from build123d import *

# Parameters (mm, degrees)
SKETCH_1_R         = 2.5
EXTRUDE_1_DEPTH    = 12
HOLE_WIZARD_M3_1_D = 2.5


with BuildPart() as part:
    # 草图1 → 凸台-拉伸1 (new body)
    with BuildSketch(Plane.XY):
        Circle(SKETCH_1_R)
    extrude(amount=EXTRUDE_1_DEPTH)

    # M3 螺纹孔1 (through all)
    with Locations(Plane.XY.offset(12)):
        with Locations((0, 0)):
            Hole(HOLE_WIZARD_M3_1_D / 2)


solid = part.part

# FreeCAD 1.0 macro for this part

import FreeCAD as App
import Part
import Sketcher
from FreeCAD import Vector

doc = App.newDocument("Part")
body = doc.addObject("PartDesign::Body", "Body")

sketch1 = doc.addObject("Sketcher::SketchObject", "Sketch")
body.addObject(sketch1)
sketch1.AttachmentSupport = (doc.XY_Plane, [""])
sketch1.MapMode = "FlatFace"
sketch1.addGeometry(Part.Circle(Vector(0, 0, 0), Vector(0, 0, 1), 2.5), False)
sketch1.addConstraint(Sketcher.Constraint("Coincident", 0, 3, -1, 1))
sketch1.addConstraint(Sketcher.Constraint("Diameter", 0, 5.0))
pad1 = doc.addObject("PartDesign::Pad", "Pad")
body.addObject(pad1)
pad1.Profile = sketch1
pad1.Length = 12

sketch2 = doc.addObject("Sketcher::SketchObject", "Sketch001")
body.addObject(sketch2)
sketch2.AttachmentSupport = (doc.XY_Plane, [""])
sketch2.MapMode = "FlatFace"
sketch2.AttachmentOffset = App.Placement(Vector(0, 0, 12), App.Rotation())
sketch2.addGeometry(Part.Circle(Vector(0, 0, 0), Vector(0, 0, 1), 1.25), False)
sketch2.addConstraint(Sketcher.Constraint("Coincident", 0, 3, -1, 1))
sketch2.addConstraint(Sketcher.Constraint("Diameter", 0, 2.5))
doc.recompute()
hole = doc.addObject("PartDesign::Hole", "Hole")
body.addObject(hole)
hole.Profile = sketch2
hole.ThreadType = "None"
hole.Diameter = 2.5
hole.DepthType = "ThroughAll"

doc.recompute()
